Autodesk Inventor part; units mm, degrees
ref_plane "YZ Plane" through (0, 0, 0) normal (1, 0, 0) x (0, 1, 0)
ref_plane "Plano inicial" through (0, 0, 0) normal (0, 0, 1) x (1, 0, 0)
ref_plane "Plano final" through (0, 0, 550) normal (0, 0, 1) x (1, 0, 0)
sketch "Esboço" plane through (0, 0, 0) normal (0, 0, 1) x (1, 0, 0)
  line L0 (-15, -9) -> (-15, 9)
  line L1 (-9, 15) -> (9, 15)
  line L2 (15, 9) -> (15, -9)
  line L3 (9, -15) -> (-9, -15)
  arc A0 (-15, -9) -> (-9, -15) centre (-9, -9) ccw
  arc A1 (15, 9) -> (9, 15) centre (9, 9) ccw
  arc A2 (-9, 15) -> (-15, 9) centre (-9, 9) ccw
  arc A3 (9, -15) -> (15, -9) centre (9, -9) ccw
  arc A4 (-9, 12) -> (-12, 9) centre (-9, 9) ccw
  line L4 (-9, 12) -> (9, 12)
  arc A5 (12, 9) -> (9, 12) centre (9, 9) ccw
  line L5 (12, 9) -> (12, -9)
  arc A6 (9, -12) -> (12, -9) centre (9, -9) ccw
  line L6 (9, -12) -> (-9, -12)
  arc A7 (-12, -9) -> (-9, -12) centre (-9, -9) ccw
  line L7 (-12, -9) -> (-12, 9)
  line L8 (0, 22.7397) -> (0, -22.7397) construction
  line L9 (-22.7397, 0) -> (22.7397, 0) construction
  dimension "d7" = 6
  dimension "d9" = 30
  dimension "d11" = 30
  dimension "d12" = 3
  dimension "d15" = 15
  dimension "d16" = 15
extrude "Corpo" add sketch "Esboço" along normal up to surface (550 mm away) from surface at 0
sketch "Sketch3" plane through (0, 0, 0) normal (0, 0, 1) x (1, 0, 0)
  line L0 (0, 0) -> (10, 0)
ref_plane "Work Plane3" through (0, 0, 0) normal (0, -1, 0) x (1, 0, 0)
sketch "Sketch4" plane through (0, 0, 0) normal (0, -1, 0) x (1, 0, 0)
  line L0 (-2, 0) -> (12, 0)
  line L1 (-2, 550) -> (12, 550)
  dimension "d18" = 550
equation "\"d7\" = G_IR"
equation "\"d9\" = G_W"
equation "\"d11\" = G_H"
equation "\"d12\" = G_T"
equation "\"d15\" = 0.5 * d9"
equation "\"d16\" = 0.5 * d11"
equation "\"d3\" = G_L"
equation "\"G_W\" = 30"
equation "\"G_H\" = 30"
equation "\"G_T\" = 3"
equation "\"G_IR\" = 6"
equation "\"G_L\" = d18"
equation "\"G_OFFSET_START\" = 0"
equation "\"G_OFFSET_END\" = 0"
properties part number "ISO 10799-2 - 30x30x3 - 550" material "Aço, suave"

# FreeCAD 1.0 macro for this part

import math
import FreeCAD as App
import Part
import Sketcher

doc = App.newDocument("Part")
body = doc.addObject("PartDesign::Body", "Body")

# Sketch on XY plane
sketch1 = body.newObject("Sketcher::SketchObject", "Sketch")
sketch1.AttachmentSupport = (doc.getObject("XY_Plane"), [""])
sketch1.MapMode = "FlatFace"
sketch1.addGeometry(Part.LineSegment(App.Vector(-15, 9, 0), App.Vector(-15, -9, 0)), False)
sketch1.addGeometry(Part.ArcOfCircle(Part.Circle(App.Vector(-9, -9, 0), App.Vector(0, 0, 1), 6), math.radians(180), math.radians(270)), False)
sketch1.addGeometry(Part.LineSegment(App.Vector(-9, -15, 0), App.Vector(9, -15, 0)), False)
sketch1.addGeometry(Part.ArcOfCircle(Part.Circle(App.Vector(9, -9, 0), App.Vector(0, 0, 1), 6), math.radians(-90), math.radians(0)), False)
sketch1.addGeometry(Part.LineSegment(App.Vector(15, -9, 0), App.Vector(15, 9, 0)), False)
sketch1.addGeometry(Part.ArcOfCircle(Part.Circle(App.Vector(9, 9, 0), App.Vector(0, 0, 1), 6), math.radians(0), math.radians(90)), False)
sketch1.addGeometry(Part.LineSegment(App.Vector(9, 15, 0), App.Vector(-9, 15, 0)), False)
sketch1.addGeometry(Part.ArcOfCircle(Part.Circle(App.Vector(-9, 9, 0), App.Vector(0, 0, 1), 6), math.radians(90), math.radians(180)), False)
sketch1.addGeometry(Part.ArcOfCircle(Part.Circle(App.Vector(-9, 9, 0), App.Vector(0, 0, 1), 3), math.radians(90), math.radians(180)), False)
sketch1.addGeometry(Part.LineSegment(App.Vector(-9, 12, 0), App.Vector(9, 12, 0)), False)
sketch1.addGeometry(Part.ArcOfCircle(Part.Circle(App.Vector(9, 9, 0), App.Vector(0, 0, 1), 3), math.radians(0), math.radians(90)), False)
sketch1.addGeometry(Part.LineSegment(App.Vector(12, 9, 0), App.Vector(12, -9, 0)), False)
sketch1.addGeometry(Part.ArcOfCircle(Part.Circle(App.Vector(9, -9, 0), App.Vector(0, 0, 1), 3), math.radians(-90), math.radians(0)), False)
sketch1.addGeometry(Part.LineSegment(App.Vector(9, -12, 0), App.Vector(-9, -12, 0)), False)
sketch1.addGeometry(Part.ArcOfCircle(Part.Circle(App.Vector(-9, -9, 0), App.Vector(0, 0, 1), 3), math.radians(180), math.radians(270)), False)
sketch1.addGeometry(Part.LineSegment(App.Vector(-12, -9, 0), App.Vector(-12, 9, 0)), False)
sketch1.addConstraint(Sketcher.Constraint("Tangent", 0, 2, 1, 1))
sketch1.addConstraint(Sketcher.Constraint("Tangent", 1, 2, 2, 1))
sketch1.addConstraint(Sketcher.Constraint("Tangent", 2, 2, 3, 1))
sketch1.addConstraint(Sketcher.Constraint("Tangent", 3, 2, 4, 1))
sketch1.addConstraint(Sketcher.Constraint("Tangent", 4, 2, 5, 1))
sketch1.addConstraint(Sketcher.Constraint("Tangent", 5, 2, 6, 1))
sketch1.addConstraint(Sketcher.Constraint("Tangent", 6, 2, 7, 1))
sketch1.addConstraint(Sketcher.Constraint("Tangent", 7, 2, 0, 1))
sketch1.addConstraint(Sketcher.Constraint("Tangent", 8, 1, 9, 1))
sketch1.addConstraint(Sketcher.Constraint("Tangent", 9, 2, 10, 2))
sketch1.addConstraint(Sketcher.Constraint("Tangent", 10, 1, 11, 1))
sketch1.addConstraint(Sketcher.Constraint("Tangent", 11, 2, 12, 2))
sketch1.addConstraint(Sketcher.Constraint("Tangent", 12, 1, 13, 1))
sketch1.addConstraint(Sketcher.Constraint("Tangent", 13, 2, 14, 2))
sketch1.addConstraint(Sketcher.Constraint("Tangent", 14, 1, 15, 1))
sketch1.addConstraint(Sketcher.Constraint("Tangent", 15, 2, 8, 2))
sketch1.addConstraint(Sketcher.Constraint("Vertical", 0))
sketch1.addConstraint(Sketcher.Constraint("Horizontal", 2))
sketch1.addConstraint(Sketcher.Constraint("Vertical", 4))
sketch1.addConstraint(Sketcher.Constraint("Horizontal", 6))
sketch1.addConstraint(Sketcher.Constraint("Horizontal", 9))
sketch1.addConstraint(Sketcher.Constraint("Vertical", 11))
sketch1.addConstraint(Sketcher.Constraint("Horizontal", 13))
sketch1.addConstraint(Sketcher.Constraint("Vertical", 15))
sketch1.addConstraint(Sketcher.Constraint("Coincident", 8, 3, 7, 3))
sketch1.addConstraint(Sketcher.Constraint("Coincident", 10, 3, 5, 3))
sketch1.addConstraint(Sketcher.Constraint("Coincident", 12, 3, 3, 3))
sketch1.addConstraint(Sketcher.Constraint("Equal", 1, 3))
sketch1.addConstraint(Sketcher.Constraint("Equal", 3, 5))
sketch1.addConstraint(Sketcher.Constraint("Equal", 5, 7))
sketch1.addConstraint(Sketcher.Constraint("Equal", 12, 14))
sketch1.addConstraint(Sketcher.Constraint("Symmetric", 1, 3, 5, 3, -1, 1))
sketch1.addConstraint(Sketcher.Constraint("Equal", 13, 0))
sketch1.addConstraint(Sketcher.Constraint("Radius", 1, 6.0))
sketch1.addConstraint(Sketcher.Constraint("Radius", 8, 3.0))
sketch1.addConstraint(Sketcher.Constraint("DistanceX", 0, 2, -1, 1, 15.0))
pad1 = body.newObject("PartDesign::Pad", "Pad")
pad1.Profile = sketch1
pad1.Length = 550

doc.recompute()
